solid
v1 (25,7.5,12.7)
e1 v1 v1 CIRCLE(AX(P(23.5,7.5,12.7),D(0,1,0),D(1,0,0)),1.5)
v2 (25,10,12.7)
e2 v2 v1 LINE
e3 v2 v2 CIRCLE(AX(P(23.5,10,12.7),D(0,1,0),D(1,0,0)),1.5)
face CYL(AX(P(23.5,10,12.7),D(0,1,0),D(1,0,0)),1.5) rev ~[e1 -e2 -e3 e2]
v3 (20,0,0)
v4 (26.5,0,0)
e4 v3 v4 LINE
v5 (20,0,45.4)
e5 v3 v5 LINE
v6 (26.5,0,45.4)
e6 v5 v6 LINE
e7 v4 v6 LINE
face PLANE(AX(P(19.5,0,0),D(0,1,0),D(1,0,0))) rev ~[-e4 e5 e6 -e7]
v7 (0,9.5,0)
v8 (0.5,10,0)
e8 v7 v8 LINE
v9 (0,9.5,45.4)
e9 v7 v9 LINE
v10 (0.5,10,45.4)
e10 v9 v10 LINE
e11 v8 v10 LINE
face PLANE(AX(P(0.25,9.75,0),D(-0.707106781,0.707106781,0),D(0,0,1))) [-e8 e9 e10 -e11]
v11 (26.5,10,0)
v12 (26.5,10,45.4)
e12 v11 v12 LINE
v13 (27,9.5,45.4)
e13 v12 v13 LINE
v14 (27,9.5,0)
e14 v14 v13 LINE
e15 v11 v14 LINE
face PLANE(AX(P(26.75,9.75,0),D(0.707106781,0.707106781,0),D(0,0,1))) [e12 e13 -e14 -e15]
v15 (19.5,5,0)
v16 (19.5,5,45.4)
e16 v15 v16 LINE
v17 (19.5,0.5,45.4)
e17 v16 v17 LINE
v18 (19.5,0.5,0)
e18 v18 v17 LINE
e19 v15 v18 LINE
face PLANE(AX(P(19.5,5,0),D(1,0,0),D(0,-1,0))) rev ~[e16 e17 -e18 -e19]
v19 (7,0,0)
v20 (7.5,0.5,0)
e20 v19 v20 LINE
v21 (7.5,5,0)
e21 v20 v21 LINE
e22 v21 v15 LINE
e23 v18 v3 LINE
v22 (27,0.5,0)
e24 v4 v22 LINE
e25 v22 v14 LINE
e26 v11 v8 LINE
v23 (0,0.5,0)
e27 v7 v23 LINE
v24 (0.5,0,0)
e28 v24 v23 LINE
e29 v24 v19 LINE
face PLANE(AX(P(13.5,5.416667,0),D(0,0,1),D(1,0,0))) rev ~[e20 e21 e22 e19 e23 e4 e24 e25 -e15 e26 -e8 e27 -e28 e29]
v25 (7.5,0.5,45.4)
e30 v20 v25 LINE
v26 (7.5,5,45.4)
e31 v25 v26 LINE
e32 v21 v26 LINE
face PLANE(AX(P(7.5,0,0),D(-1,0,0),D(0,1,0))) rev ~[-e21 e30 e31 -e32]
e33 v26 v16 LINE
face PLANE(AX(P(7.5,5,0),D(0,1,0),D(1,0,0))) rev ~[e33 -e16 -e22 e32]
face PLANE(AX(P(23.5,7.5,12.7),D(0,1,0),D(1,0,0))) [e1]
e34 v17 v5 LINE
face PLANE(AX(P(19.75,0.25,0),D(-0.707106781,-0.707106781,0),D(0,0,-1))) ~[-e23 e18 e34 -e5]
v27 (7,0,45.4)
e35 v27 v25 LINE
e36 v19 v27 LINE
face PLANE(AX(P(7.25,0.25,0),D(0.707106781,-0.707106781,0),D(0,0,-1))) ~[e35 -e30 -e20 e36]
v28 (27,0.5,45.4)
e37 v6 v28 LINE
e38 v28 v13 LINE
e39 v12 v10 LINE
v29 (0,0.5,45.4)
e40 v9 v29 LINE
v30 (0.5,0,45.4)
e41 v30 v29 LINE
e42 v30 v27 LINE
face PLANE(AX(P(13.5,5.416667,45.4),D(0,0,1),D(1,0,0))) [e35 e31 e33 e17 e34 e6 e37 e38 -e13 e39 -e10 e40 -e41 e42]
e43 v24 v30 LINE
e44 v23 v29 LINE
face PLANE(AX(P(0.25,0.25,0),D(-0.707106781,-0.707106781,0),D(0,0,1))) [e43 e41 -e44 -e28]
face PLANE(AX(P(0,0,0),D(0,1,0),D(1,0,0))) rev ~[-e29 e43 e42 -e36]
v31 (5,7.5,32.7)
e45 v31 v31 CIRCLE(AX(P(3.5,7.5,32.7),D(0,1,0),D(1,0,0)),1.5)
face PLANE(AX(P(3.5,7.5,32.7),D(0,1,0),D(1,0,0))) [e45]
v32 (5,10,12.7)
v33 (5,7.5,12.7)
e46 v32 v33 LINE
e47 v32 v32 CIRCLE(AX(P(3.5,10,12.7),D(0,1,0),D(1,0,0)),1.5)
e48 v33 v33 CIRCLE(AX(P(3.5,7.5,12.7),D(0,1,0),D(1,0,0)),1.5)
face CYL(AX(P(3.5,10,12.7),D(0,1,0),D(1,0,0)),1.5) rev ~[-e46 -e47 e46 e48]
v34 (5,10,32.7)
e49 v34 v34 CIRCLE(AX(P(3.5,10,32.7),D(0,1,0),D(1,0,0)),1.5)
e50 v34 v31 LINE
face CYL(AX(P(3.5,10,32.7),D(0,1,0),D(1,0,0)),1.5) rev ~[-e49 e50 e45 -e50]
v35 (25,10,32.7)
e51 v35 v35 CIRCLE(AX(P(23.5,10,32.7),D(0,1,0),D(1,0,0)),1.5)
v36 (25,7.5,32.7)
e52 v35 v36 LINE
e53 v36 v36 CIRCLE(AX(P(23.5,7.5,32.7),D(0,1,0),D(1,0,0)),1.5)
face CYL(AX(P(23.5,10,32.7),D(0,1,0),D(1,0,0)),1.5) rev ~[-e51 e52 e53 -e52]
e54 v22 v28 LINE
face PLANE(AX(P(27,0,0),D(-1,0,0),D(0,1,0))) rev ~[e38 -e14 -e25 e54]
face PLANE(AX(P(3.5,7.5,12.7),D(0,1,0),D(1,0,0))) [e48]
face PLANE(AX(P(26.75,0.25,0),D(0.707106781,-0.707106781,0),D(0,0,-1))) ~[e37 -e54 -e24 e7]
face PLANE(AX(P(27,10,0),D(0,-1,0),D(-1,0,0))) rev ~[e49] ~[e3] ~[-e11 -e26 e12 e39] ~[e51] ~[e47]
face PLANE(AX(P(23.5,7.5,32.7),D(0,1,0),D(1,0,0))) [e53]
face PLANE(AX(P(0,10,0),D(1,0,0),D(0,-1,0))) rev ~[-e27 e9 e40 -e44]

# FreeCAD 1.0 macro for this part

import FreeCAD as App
import Part
import Sketcher
Q = App.Units.Quantity


def edges_at(feature, points):
    """Names of the edges that pass closest to the given points."""
    edges = feature.Shape.Edges
    near = lambda p: min(range(len(edges)), key=lambda i: edges[i].distToShape(Part.Vertex(*p))[0])
    return sorted({f"Edge{near(p) + 1}" for p in points})

doc = App.newDocument("Part")
body = doc.addObject("PartDesign::Body", "Body")

sketch1 = body.newObject("Sketcher::SketchObject", "Sketch")
sketch1.AttachmentSupport = (doc.getObject("XY_Plane"), [""])
sketch1.MapMode = "FlatFace"
sketch1.addGeometry(Part.LineSegment(App.Vector(0, 0, 0), App.Vector(8, 0, 0)), False)
sketch1.addGeometry(Part.LineSegment(App.Vector(8, 0, 0), App.Vector(8, 5, 0)), False)
sketch1.addGeometry(Part.LineSegment(App.Vector(8, 5, 0), App.Vector(20, 5, 0)), False)
sketch1.addGeometry(Part.LineSegment(App.Vector(20, 5, 0), App.Vector(20, 0, 0)), False)
sketch1.addGeometry(Part.LineSegment(App.Vector(20, 0, 0), App.Vector(27, 0, 0)), False)
sketch1.addGeometry(Part.LineSegment(App.Vector(27, 0, 0), App.Vector(27, 10, 0)), False)
sketch1.addGeometry(Part.LineSegment(App.Vector(27, 10, 0), App.Vector(0, 10, 0)), False)
sketch1.addGeometry(Part.LineSegment(App.Vector(0, 10, 0), App.Vector(0, 0, 0)), False)
sketch1.addConstraint(Sketcher.Constraint("Coincident", 0, 2, 1, 1))
sketch1.addConstraint(Sketcher.Constraint("Coincident", 1, 2, 2, 1))
sketch1.addConstraint(Sketcher.Constraint("Coincident", 2, 2, 3, 1))
sketch1.addConstraint(Sketcher.Constraint("Coincident", 3, 2, 4, 1))
sketch1.addConstraint(Sketcher.Constraint("Coincident", 4, 2, 5, 1))
sketch1.addConstraint(Sketcher.Constraint("Coincident", 5, 2, 6, 1))
sketch1.addConstraint(Sketcher.Constraint("Coincident", 6, 2, 7, 1))
sketch1.addConstraint(Sketcher.Constraint("Coincident", 7, 2, 0, 1))
sketch1.addConstraint(Sketcher.Constraint("Horizontal", 0))
sketch1.addConstraint(Sketcher.Constraint("Vertical", 1))
sketch1.addConstraint(Sketcher.Constraint("Horizontal", 2))
sketch1.addConstraint(Sketcher.Constraint("Vertical", 3))
sketch1.addConstraint(Sketcher.Constraint("Horizontal", 4))
sketch1.addConstraint(Sketcher.Constraint("Vertical", 5))
sketch1.addConstraint(Sketcher.Constraint("Horizontal", 6))
sketch1.addConstraint(Sketcher.Constraint("Vertical", 7))
sketch1.addConstraint(Sketcher.Constraint("Coincident", 7, 2, -1, 1))
sketch1.addConstraint(Sketcher.Constraint("PointOnObject", 3, 2, -1))
sketch1.addConstraint(Sketcher.Constraint("Equal", 0, 4))
sketch1.addConstraint(Sketcher.Constraint("DistanceX", 2, 1, 2, 2, Q("12 mm")))
sketch1.addConstraint(Sketcher.Constraint("DistanceX", 6, 2, 6, 1, Q("27 mm")))
sketch1.addConstraint(Sketcher.Constraint("DistanceY", 1, 1, 1, 2, Q("5 mm")))
sketch1.addConstraint(Sketcher.Constraint("DistanceY", 5, 1, 5, 2, Q("10 mm")))
pad1 = body.newObject("PartDesign::Pad", "Pad")
pad1.Profile = sketch1
pad1.Length = 45.4

sketch2 = body.newObject("Sketcher::SketchObject", "Sketch001")
sketch2.AttachmentSupport = (doc.getObject("XZ_Plane"), [""])
sketch2.MapMode = "FlatFace"
sketch2.AttachmentOffset = App.Placement(App.Vector(0, 0, -10), App.Rotation())
sketch2.addGeometry(Part.Circle(App.Vector(23.5, 12.7, 0), App.Vector(0, 0, 1), 1.5), False)
sketch2.addGeometry(Part.Circle(App.Vector(3.5, 12.7, 0), App.Vector(0, 0, 1), 1.5), False)
sketch2.addGeometry(Part.Circle(App.Vector(23.5, 32.7, 0), App.Vector(0, 0, 1), 1.5), False)
sketch2.addGeometry(Part.Circle(App.Vector(3.5, 32.7, 0), App.Vector(0, 0, 1), 1.5), False)
sketch2.addConstraint(Sketcher.Constraint("Equal", 0, 1))
sketch2.addConstraint(Sketcher.Constraint("Equal", 1, 2))
sketch2.addConstraint(Sketcher.Constraint("Equal", 2, 3))
sketch2.addConstraint(Sketcher.Constraint("Horizontal", 0, 3, 1, 3))
sketch2.addConstraint(Sketcher.Constraint("Horizontal", 2, 3, 3, 3))
sketch2.addConstraint(Sketcher.Constraint("Vertical", 0, 3, 2, 3))
sketch2.addConstraint(Sketcher.Constraint("Vertical", 1, 3, 3, 3))
sketch2.addConstraint(Sketcher.Constraint("Diameter", 0, Q("3 mm")))
sketch2.addConstraint(Sketcher.Constraint("DistanceX", 1, 3, 0, 3, Q("20 mm")))
sketch2.addConstraint(Sketcher.Constraint("DistanceY", 0, 3, 2, 3, Q("20 mm")))
sketch2.addConstraint(Sketcher.Constraint("DistanceX", -1, 1, 0, 3, Q("23.5 mm")))
sketch2.addConstraint(Sketcher.Constraint("DistanceY", -1, 1, 0, 3, Q("12.7 mm")))
pocket1 = body.newObject("PartDesign::Pocket", "Pocket")
pocket1.Profile = sketch2
pocket1.Length = 2.5
pocket1.Reversed = True
doc.recompute()

chamfer = body.newObject("PartDesign::Chamfer", "Chamfer")
chamfer.Base = (pocket1, edges_at(pocket1, [
    (0, 10, 22.7),
    (27, 10, 22.7),
    (27, 0, 22.7),
    (19.5, 0, 22.7),
    (7.5, 0, 22.7),
    (0, 0, 22.7),
]))
chamfer.Size = 0.5

doc.recompute()
